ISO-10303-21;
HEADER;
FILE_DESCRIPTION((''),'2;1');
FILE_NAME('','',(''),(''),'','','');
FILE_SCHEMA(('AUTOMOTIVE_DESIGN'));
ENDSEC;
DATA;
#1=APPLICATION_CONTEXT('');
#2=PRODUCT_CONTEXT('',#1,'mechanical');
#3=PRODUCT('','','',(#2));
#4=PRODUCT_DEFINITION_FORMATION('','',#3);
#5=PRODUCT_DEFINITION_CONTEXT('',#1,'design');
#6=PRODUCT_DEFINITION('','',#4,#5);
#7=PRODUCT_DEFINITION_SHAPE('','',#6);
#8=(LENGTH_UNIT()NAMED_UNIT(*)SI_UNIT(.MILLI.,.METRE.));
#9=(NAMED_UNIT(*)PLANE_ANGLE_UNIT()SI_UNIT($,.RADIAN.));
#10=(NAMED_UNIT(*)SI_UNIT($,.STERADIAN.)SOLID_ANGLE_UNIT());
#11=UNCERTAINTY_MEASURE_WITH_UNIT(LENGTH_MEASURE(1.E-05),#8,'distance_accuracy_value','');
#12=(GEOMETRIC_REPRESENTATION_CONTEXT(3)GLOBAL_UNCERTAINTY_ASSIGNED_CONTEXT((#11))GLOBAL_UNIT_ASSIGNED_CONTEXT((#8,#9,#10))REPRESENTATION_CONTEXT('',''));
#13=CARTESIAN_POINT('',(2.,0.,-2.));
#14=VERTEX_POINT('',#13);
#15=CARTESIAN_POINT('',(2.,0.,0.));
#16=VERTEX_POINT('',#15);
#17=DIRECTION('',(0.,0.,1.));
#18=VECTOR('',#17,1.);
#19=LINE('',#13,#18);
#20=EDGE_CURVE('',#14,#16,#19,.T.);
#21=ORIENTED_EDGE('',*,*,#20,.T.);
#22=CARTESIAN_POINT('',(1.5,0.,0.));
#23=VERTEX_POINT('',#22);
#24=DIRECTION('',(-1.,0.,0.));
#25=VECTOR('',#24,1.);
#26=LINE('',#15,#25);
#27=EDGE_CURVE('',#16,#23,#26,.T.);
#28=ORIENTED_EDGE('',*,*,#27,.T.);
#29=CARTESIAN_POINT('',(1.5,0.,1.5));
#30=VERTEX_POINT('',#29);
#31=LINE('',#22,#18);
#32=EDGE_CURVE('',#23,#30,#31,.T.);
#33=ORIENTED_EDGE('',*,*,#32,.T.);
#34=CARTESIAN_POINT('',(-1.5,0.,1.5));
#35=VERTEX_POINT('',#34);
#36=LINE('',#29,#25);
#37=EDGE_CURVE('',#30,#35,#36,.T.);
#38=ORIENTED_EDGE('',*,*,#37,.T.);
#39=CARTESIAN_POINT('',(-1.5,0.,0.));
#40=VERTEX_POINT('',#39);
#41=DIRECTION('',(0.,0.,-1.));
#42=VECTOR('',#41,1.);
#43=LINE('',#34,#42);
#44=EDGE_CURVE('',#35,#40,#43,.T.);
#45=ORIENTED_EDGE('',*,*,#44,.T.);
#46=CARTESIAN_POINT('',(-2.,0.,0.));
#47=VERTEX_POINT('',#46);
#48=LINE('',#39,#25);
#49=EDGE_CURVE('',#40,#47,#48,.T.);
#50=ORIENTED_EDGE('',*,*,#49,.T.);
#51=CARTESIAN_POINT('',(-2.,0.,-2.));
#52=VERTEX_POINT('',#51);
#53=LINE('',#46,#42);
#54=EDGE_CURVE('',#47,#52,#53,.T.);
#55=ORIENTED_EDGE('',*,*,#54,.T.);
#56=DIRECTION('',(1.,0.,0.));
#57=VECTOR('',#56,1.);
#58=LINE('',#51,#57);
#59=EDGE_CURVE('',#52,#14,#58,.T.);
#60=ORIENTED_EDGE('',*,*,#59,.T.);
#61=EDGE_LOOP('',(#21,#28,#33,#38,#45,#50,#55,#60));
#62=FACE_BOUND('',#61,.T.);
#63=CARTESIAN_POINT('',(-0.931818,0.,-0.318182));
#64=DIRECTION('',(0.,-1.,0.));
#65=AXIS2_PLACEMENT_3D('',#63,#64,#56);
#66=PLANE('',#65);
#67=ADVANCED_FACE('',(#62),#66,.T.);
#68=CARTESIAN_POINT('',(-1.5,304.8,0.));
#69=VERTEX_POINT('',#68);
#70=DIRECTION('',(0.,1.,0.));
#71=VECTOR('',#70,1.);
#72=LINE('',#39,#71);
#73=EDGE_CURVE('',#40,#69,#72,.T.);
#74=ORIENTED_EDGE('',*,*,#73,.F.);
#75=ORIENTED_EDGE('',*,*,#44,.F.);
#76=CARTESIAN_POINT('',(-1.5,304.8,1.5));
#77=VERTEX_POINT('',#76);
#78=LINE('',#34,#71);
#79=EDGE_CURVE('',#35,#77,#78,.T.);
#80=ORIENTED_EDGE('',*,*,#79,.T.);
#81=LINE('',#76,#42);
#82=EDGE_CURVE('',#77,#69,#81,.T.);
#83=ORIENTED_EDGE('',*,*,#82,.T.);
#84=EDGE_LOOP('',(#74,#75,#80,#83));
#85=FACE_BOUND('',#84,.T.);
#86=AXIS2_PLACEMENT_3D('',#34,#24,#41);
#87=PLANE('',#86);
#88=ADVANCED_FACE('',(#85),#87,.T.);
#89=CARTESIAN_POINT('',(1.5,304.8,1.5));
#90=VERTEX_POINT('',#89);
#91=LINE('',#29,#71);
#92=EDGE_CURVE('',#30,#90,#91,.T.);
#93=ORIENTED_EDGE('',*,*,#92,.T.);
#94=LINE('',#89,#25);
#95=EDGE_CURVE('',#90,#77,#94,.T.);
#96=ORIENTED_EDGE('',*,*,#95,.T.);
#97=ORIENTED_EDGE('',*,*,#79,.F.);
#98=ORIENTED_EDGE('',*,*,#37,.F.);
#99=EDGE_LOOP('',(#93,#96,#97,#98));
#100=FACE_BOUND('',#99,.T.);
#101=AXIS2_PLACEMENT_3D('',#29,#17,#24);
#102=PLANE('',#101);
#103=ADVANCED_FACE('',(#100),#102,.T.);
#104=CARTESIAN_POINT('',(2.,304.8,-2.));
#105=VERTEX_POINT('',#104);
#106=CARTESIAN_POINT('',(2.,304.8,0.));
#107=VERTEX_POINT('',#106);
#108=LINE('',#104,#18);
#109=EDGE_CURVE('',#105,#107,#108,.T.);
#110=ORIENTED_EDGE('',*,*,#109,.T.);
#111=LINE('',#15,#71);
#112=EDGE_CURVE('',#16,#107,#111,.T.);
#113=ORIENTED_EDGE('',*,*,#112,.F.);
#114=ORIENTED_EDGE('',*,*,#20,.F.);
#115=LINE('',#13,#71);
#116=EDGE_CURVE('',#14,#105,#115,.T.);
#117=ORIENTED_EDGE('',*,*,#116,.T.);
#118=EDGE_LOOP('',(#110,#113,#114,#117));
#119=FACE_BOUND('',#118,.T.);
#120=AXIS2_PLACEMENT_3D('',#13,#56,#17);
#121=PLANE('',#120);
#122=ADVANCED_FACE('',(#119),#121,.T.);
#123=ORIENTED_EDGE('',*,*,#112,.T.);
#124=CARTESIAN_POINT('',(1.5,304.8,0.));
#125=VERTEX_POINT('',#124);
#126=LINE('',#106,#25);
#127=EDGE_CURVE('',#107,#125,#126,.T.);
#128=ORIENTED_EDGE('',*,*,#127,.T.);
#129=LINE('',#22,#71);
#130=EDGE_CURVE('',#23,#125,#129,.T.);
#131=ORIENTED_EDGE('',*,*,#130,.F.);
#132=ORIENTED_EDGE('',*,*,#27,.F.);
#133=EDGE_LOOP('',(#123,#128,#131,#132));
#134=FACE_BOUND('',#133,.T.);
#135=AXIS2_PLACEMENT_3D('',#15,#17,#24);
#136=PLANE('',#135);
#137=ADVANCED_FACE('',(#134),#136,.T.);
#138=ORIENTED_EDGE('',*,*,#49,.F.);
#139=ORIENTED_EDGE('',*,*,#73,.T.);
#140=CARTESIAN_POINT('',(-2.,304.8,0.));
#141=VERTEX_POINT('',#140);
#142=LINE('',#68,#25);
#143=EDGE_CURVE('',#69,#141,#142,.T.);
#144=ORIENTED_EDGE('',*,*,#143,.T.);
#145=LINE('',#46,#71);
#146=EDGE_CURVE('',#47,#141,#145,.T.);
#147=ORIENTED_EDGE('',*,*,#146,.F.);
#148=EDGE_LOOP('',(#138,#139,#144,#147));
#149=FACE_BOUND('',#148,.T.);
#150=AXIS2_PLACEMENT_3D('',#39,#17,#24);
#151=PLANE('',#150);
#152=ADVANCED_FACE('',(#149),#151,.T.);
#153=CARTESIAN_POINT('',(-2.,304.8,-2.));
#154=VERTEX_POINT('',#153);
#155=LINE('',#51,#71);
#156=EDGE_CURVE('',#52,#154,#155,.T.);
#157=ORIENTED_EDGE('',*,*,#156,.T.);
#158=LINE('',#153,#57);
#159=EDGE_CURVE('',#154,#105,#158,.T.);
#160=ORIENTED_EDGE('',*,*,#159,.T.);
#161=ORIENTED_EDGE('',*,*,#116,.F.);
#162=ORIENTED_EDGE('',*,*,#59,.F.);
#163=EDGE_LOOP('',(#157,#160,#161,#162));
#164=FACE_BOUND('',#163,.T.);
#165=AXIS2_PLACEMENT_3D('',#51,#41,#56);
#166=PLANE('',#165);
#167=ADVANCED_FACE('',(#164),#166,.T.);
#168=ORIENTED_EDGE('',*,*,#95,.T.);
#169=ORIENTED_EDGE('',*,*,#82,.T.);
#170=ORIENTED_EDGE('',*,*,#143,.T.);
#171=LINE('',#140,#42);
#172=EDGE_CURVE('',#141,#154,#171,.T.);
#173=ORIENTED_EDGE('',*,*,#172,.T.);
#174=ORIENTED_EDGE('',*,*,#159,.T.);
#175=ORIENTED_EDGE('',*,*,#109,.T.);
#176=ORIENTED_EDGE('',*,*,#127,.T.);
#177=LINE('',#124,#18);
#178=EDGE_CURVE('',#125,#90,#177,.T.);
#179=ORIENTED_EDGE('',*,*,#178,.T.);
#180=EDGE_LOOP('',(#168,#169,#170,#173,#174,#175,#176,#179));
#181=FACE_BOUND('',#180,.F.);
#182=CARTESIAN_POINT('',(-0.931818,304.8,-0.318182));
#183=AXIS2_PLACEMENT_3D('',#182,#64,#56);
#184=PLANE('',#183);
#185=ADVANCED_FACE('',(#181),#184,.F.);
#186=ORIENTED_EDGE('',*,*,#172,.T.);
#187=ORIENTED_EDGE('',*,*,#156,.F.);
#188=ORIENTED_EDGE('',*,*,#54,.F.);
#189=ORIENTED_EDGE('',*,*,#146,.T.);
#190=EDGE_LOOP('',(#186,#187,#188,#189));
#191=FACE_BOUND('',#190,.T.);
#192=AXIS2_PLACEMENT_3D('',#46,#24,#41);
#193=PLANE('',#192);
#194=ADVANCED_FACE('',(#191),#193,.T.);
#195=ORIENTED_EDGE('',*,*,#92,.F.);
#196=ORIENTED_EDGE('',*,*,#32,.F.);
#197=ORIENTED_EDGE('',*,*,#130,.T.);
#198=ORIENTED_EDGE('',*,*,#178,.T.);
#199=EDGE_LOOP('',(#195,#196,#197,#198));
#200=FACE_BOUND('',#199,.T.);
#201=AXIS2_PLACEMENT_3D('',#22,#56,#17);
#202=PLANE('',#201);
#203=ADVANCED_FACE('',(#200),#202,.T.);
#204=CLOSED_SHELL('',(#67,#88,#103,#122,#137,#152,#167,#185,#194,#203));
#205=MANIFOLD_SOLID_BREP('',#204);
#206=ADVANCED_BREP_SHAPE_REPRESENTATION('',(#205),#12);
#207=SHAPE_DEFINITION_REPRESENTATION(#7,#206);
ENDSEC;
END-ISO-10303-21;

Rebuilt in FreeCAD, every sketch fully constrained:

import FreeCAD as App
import Part
import Sketcher
Q = App.Units.Quantity

doc = App.newDocument("Part")
body = doc.addObject("PartDesign::Body", "Body")

# Sketch on XZ plane
sketch1 = body.newObject("Sketcher::SketchObject", "Sketch")
sketch1.AttachmentSupport = (doc.getObject("XZ_Plane"), [""])
sketch1.MapMode = "FlatFace"
sketch1.addGeometry([
    Part.LineSegment(App.Vector(-2, -2, 0), App.Vector(2, -2, 0)),  # 0
    Part.LineSegment(App.Vector(2, -2, 0), App.Vector(2, 0, 0)),  # 1
    Part.LineSegment(App.Vector(2, 0, 0), App.Vector(1.5, 0, 0)),  # 2
    Part.LineSegment(App.Vector(1.5, 0, 0), App.Vector(1.5, 1.5, 0)),  # 3
    Part.LineSegment(App.Vector(1.5, 1.5, 0), App.Vector(-1.5, 1.5, 0)),  # 4
    Part.LineSegment(App.Vector(-1.5, 1.5, 0), App.Vector(-1.5, 0, 0)),  # 5
    Part.LineSegment(App.Vector(-1.5, 0, 0), App.Vector(-2, 0, 0)),  # 6
    Part.LineSegment(App.Vector(-2, 0, 0), App.Vector(-2, -2, 0)),  # 7
], False)
sketch1.addConstraint([
    Sketcher.Constraint("Coincident", 0, 2, 1, 1),
    Sketcher.Constraint("Coincident", 1, 2, 2, 1),
    Sketcher.Constraint("Coincident", 2, 2, 3, 1),
    Sketcher.Constraint("Coincident", 3, 2, 4, 1),
    Sketcher.Constraint("Coincident", 4, 2, 5, 1),
    Sketcher.Constraint("Coincident", 5, 2, 6, 1),
    Sketcher.Constraint("Coincident", 6, 2, 7, 1),
    Sketcher.Constraint("Coincident", 7, 2, 0, 1),
    Sketcher.Constraint("Horizontal", 0),
    Sketcher.Constraint("Vertical", 1),
    Sketcher.Constraint("Horizontal", 2),
    Sketcher.Constraint("Vertical", 3),
    Sketcher.Constraint("Horizontal", 4),
    Sketcher.Constraint("Vertical", 5),
    Sketcher.Constraint("Horizontal", 6),
    Sketcher.Constraint("Vertical", 7),
    Sketcher.Constraint("Symmetric", 2, 2, 5, 2, -1, 1),
    Sketcher.Constraint("Symmetric", 1, 2, 6, 2, -2),
    Sketcher.Constraint("DistanceX", 0, 1, 0, 2, Q("4 mm")),
    Sketcher.Constraint("DistanceX", 4, 2, 4, 1, Q("3 mm")),
    Sketcher.Constraint("DistanceY", 1, 1, 1, 2, Q("2 mm")),
    Sketcher.Constraint("DistanceY", 3, 1, 3, 2, Q("1.5 mm")),
])
pad1 = body.newObject("PartDesign::Pad", "Pad")
pad1.Profile = sketch1
pad1.Length = 304.8
pad1.Reversed = True

doc.recompute()
